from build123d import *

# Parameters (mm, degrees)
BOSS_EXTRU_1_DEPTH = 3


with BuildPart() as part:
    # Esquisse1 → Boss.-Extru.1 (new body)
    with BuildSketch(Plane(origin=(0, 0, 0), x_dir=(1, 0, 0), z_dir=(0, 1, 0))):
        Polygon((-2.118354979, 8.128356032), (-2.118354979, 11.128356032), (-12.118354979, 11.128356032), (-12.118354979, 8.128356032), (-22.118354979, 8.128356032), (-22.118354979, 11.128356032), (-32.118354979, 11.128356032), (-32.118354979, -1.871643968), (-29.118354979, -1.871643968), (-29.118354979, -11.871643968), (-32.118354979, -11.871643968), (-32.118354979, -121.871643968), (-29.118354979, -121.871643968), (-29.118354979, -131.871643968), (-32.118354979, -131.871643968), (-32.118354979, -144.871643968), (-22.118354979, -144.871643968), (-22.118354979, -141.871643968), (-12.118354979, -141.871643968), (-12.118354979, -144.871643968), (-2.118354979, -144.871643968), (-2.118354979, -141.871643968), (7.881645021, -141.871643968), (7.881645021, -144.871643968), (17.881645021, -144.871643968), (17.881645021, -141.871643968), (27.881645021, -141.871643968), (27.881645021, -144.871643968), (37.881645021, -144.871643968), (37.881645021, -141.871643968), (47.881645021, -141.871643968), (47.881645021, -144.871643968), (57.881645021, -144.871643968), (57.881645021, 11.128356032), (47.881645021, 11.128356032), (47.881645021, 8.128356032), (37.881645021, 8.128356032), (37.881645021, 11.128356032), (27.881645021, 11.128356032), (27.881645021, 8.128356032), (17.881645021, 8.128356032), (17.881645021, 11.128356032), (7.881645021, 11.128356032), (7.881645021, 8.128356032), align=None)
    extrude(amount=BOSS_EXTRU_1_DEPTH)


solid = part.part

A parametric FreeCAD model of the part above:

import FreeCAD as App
import Part
import Sketcher
from FreeCAD import Vector

doc = App.newDocument("Part")
body = doc.addObject("PartDesign::Body", "Body")

sketch1 = body.newObject("Sketcher::SketchObject", "Sketch")
sketch1.AttachmentSupport = (doc.getObject("XZ_Plane"), [""])
sketch1.MapMode = "FlatFace"
sketch1.addGeometry([
    Part.LineSegment(Vector(-2.118355, -8.128356, 0), Vector(-2.118355, -11.128356, 0)),
    Part.LineSegment(Vector(-2.118355, -11.128356, 0), Vector(-12.118355, -11.128356, 0)),
    Part.LineSegment(Vector(-12.118355, -11.128356, 0), Vector(-12.118355, -8.128356, 0)),
    Part.LineSegment(Vector(-12.118355, -8.128356, 0), Vector(-22.118355, -8.128356, 0)),
    Part.LineSegment(Vector(-22.118355, -8.128356, 0), Vector(-22.118355, -11.128356, 0)),
    Part.LineSegment(Vector(-22.118355, -11.128356, 0), Vector(-32.118355, -11.128356, 0)),
    Part.LineSegment(Vector(-32.118355, -11.128356, 0), Vector(-32.118355, 1.871644, 0)),
    Part.LineSegment(Vector(-32.118355, 1.871644, 0), Vector(-29.118355, 1.871644, 0)),
    Part.LineSegment(Vector(-29.118355, 1.871644, 0), Vector(-29.118355, 11.871644, 0)),
    Part.LineSegment(Vector(-29.118355, 11.871644, 0), Vector(-32.118355, 11.871644, 0)),
    Part.LineSegment(Vector(-32.118355, 11.871644, 0), Vector(-32.118355, 121.871644, 0)),
    Part.LineSegment(Vector(-32.118355, 121.871644, 0), Vector(-29.118355, 121.871644, 0)),
    Part.LineSegment(Vector(-29.118355, 121.871644, 0), Vector(-29.118355, 131.871644, 0)),
    Part.LineSegment(Vector(-29.118355, 131.871644, 0), Vector(-32.118355, 131.871644, 0)),
    Part.LineSegment(Vector(-32.118355, 131.871644, 0), Vector(-32.118355, 144.871644, 0)),
    Part.LineSegment(Vector(-32.118355, 144.871644, 0), Vector(-22.118355, 144.871644, 0)),
    Part.LineSegment(Vector(-22.118355, 144.871644, 0), Vector(-22.118355, 141.871644, 0)),
    Part.LineSegment(Vector(-22.118355, 141.871644, 0), Vector(-12.118355, 141.871644, 0)),
    Part.LineSegment(Vector(-12.118355, 141.871644, 0), Vector(-12.118355, 144.871644, 0)),
    Part.LineSegment(Vector(-12.118355, 144.871644, 0), Vector(-2.118355, 144.871644, 0)),
    Part.LineSegment(Vector(-2.118355, 144.871644, 0), Vector(-2.118355, 141.871644, 0)),
    Part.LineSegment(Vector(-2.118355, 141.871644, 0), Vector(7.881645, 141.871644, 0)),
    Part.LineSegment(Vector(7.881645, 141.871644, 0), Vector(7.881645, 144.871644, 0)),
    Part.LineSegment(Vector(7.881645, 144.871644, 0), Vector(17.881645, 144.871644, 0)),
    Part.LineSegment(Vector(17.881645, 144.871644, 0), Vector(17.881645, 141.871644, 0)),
    Part.LineSegment(Vector(17.881645, 141.871644, 0), Vector(27.881645, 141.871644, 0)),
    Part.LineSegment(Vector(27.881645, 141.871644, 0), Vector(27.881645, 144.871644, 0)),
    Part.LineSegment(Vector(27.881645, 144.871644, 0), Vector(37.881645, 144.871644, 0)),
    Part.LineSegment(Vector(37.881645, 144.871644, 0), Vector(37.881645, 141.871644, 0)),
    Part.LineSegment(Vector(37.881645, 141.871644, 0), Vector(47.881645, 141.871644, 0)),
    Part.LineSegment(Vector(47.881645, 141.871644, 0), Vector(47.881645, 144.871644, 0)),
    Part.LineSegment(Vector(47.881645, 144.871644, 0), Vector(57.881645, 144.871644, 0)),
    Part.LineSegment(Vector(57.881645, 144.871644, 0), Vector(57.881645, -11.128356, 0)),
    Part.LineSegment(Vector(57.881645, -11.128356, 0), Vector(47.881645, -11.128356, 0)),
    Part.LineSegment(Vector(47.881645, -11.128356, 0), Vector(47.881645, -8.128356, 0)),
    Part.LineSegment(Vector(47.881645, -8.128356, 0), Vector(37.881645, -8.128356, 0)),
    Part.LineSegment(Vector(37.881645, -8.128356, 0), Vector(37.881645, -11.128356, 0)),
    Part.LineSegment(Vector(37.881645, -11.128356, 0), Vector(27.881645, -11.128356, 0)),
    Part.LineSegment(Vector(27.881645, -11.128356, 0), Vector(27.881645, -8.128356, 0)),
    Part.LineSegment(Vector(27.881645, -8.128356, 0), Vector(17.881645, -8.128356, 0)),
    Part.LineSegment(Vector(17.881645, -8.128356, 0), Vector(17.881645, -11.128356, 0)),
    Part.LineSegment(Vector(17.881645, -11.128356, 0), Vector(7.881645, -11.128356, 0)),
    Part.LineSegment(Vector(7.881645, -11.128356, 0), Vector(7.881645, -8.128356, 0)),
    Part.LineSegment(Vector(7.881645, -8.128356, 0), Vector(-2.118355, -8.128356, 0)),
], False)
sketch1.addConstraint([
    Sketcher.Constraint("Coincident", 0, 2, 1, 1),
    Sketcher.Constraint("Coincident", 1, 2, 2, 1),
    Sketcher.Constraint("Coincident", 2, 2, 3, 1),
    Sketcher.Constraint("Coincident", 3, 2, 4, 1),
    Sketcher.Constraint("Coincident", 4, 2, 5, 1),
    Sketcher.Constraint("Coincident", 5, 2, 6, 1),
    Sketcher.Constraint("Coincident", 6, 2, 7, 1),
    Sketcher.Constraint("Coincident", 7, 2, 8, 1),
    Sketcher.Constraint("Coincident", 8, 2, 9, 1),
    Sketcher.Constraint("Coincident", 9, 2, 10, 1),
    Sketcher.Constraint("Coincident", 10, 2, 11, 1),
    Sketcher.Constraint("Coincident", 11, 2, 12, 1),
    Sketcher.Constraint("Coincident", 12, 2, 13, 1),
    Sketcher.Constraint("Coincident", 13, 2, 14, 1),
    Sketcher.Constraint("Coincident", 14, 2, 15, 1),
    Sketcher.Constraint("Coincident", 15, 2, 16, 1),
    Sketcher.Constraint("Coincident", 16, 2, 17, 1),
    Sketcher.Constraint("Coincident", 17, 2, 18, 1),
    Sketcher.Constraint("Coincident", 18, 2, 19, 1),
    Sketcher.Constraint("Coincident", 19, 2, 20, 1),
    Sketcher.Constraint("Coincident", 20, 2, 21, 1),
    Sketcher.Constraint("Coincident", 21, 2, 22, 1),
    Sketcher.Constraint("Coincident", 22, 2, 23, 1),
    Sketcher.Constraint("Coincident", 23, 2, 24, 1),
    Sketcher.Constraint("Coincident", 24, 2, 25, 1),
    Sketcher.Constraint("Coincident", 25, 2, 26, 1),
    Sketcher.Constraint("Coincident", 26, 2, 27, 1),
    Sketcher.Constraint("Coincident", 27, 2, 28, 1),
    Sketcher.Constraint("Coincident", 28, 2, 29, 1),
    Sketcher.Constraint("Coincident", 29, 2, 30, 1),
    Sketcher.Constraint("Coincident", 30, 2, 31, 1),
    Sketcher.Constraint("Coincident", 31, 2, 32, 1),
    Sketcher.Constraint("Coincident", 32, 2, 33, 1),
    Sketcher.Constraint("Coincident", 33, 2, 34, 1),
    Sketcher.Constraint("Coincident", 34, 2, 35, 1),
    Sketcher.Constraint("Coincident", 35, 2, 36, 1),
    Sketcher.Constraint("Coincident", 36, 2, 37, 1),
    Sketcher.Constraint("Coincident", 37, 2, 38, 1),
    Sketcher.Constraint("Coincident", 38, 2, 39, 1),
    Sketcher.Constraint("Coincident", 39, 2, 40, 1),
    Sketcher.Constraint("Coincident", 40, 2, 41, 1),
    Sketcher.Constraint("Coincident", 41, 2, 42, 1),
    Sketcher.Constraint("Coincident", 42, 2, 43, 1),
    Sketcher.Constraint("Coincident", 43, 2, 0, 1),
    Sketcher.Constraint("Vertical", 0),
    Sketcher.Constraint("Horizontal", 1),
    Sketcher.Constraint("Vertical", 2),
    Sketcher.Constraint("Horizontal", 3),
    Sketcher.Constraint("Vertical", 4),
    Sketcher.Constraint("Horizontal", 5),
    Sketcher.Constraint("Vertical", 6),
    Sketcher.Constraint("Horizontal", 7),
    Sketcher.Constraint("Vertical", 8),
    Sketcher.Constraint("Horizontal", 9),
    Sketcher.Constraint("Vertical", 10),
    Sketcher.Constraint("Horizontal", 11),
    Sketcher.Constraint("Vertical", 12),
    Sketcher.Constraint("Horizontal", 13),
    Sketcher.Constraint("Vertical", 14),
    Sketcher.Constraint("Horizontal", 15),
    Sketcher.Constraint("Vertical", 16),
    Sketcher.Constraint("Horizontal", 17),
    Sketcher.Constraint("Vertical", 18),
    Sketcher.Constraint("Horizontal", 19),
    Sketcher.Constraint("Vertical", 20),
    Sketcher.Constraint("Horizontal", 21),
    Sketcher.Constraint("Vertical", 22),
    Sketcher.Constraint("Horizontal", 23),
    Sketcher.Constraint("Vertical", 24),
    Sketcher.Constraint("Horizontal", 25),
    Sketcher.Constraint("Vertical", 26),
    Sketcher.Constraint("Horizontal", 27),
    Sketcher.Constraint("Vertical", 28),
    Sketcher.Constraint("Horizontal", 29),
    Sketcher.Constraint("Vertical", 30),
    Sketcher.Constraint("Horizontal", 31),
    Sketcher.Constraint("Vertical", 32),
    Sketcher.Constraint("Horizontal", 33),
    Sketcher.Constraint("Vertical", 34),
    Sketcher.Constraint("Horizontal", 35),
    Sketcher.Constraint("Vertical", 36),
    Sketcher.Constraint("Horizontal", 37),
    Sketcher.Constraint("Vertical", 38),
    Sketcher.Constraint("Horizontal", 39),
    Sketcher.Constraint("Vertical", 40),
    Sketcher.Constraint("Horizontal", 41),
    Sketcher.Constraint("Vertical", 42),
    Sketcher.Constraint("Horizontal", 43),
    Sketcher.Constraint("Horizontal", 1, 2, 4, 2),
    Sketcher.Constraint("Horizontal", 15, 2, 18, 2),
    Sketcher.Constraint("Horizontal", 17, 2, 20, 2),
    Sketcher.Constraint("Horizontal", 19, 2, 22, 2),
    Sketcher.Constraint("Horizontal", 21, 2, 24, 2),
    Sketcher.Constraint("Horizontal", 23, 2, 26, 2),
    Sketcher.Constraint("Horizontal", 25, 2, 28, 2),
    Sketcher.Constraint("Horizontal", 27, 2, 30, 2),
    Sketcher.Constraint("Horizontal", 5, 2, 32, 2),
    Sketcher.Constraint("Horizontal", 3, 2, 34, 2),
    Sketcher.Constraint("Horizontal", 33, 2, 36, 2),
    Sketcher.Constraint("Horizontal", 35, 2, 38, 2),
    Sketcher.Constraint("Horizontal", 37, 2, 40, 2),
    Sketcher.Constraint("Horizontal", 39, 2, 42, 2),
    Sketcher.Constraint("Vertical", 6, 2, 9, 2),
    Sketcher.Constraint("Vertical", 8, 2, 11, 2),
    Sketcher.Constraint("Vertical", 10, 2, 13, 2),
    Sketcher.Constraint("Vertical", 4, 2, 15, 2),
    Sketcher.Constraint("Vertical", 2, 2, 17, 2),
    Sketcher.Constraint("Vertical", 0, 2, 19, 2),
    Sketcher.Constraint("Vertical", 30, 2, 33, 2),
    Sketcher.Constraint("Vertical", 28, 2, 35, 2),
    Sketcher.Constraint("Vertical", 26, 2, 37, 2),
    Sketcher.Constraint("Vertical", 24, 2, 39, 2),
    Sketcher.Constraint("Vertical", 22, 2, 41, 2),
    Sketcher.Constraint("Equal", 1, 3),
    Sketcher.Constraint("Equal", 3, 5),
    Sketcher.Constraint("Equal", 19, 21),
    Sketcher.Constraint("Equal", 21, 23),
    Sketcher.Constraint("Equal", 23, 25),
    Sketcher.Constraint("Equal", 25, 27),
    Sketcher.Constraint("Equal", 27, 29),
    Sketcher.Constraint("Equal", 29, 31),
    Sketcher.Constraint("Equal", 13, 0),
    Sketcher.Constraint("Equal", 43, 8),
    Sketcher.Constraint("Equal", 8, 12),
    Sketcher.Constraint("Equal", 6, 14),
    Sketcher.Constraint("Equal", 4, 16),
    Sketcher.Constraint("DistanceX", 1, 2, 1, 1, 10.0),
    Sketcher.Constraint("DistanceX", 7, 1, 7, 2, 3.0),
    Sketcher.Constraint("DistanceY", 6, 1, 6, 2, 13.0),
    Sketcher.Constraint("DistanceY", 10, 1, 10, 2, 110.0),
    Sketcher.Constraint("DistanceX", 0, 2, -1, 1, 2.118355),
    Sketcher.Constraint("DistanceY", 0, 2, -1, 1, 11.128356),
])
pad1 = body.newObject("PartDesign::Pad", "Pad")
pad1.Profile = sketch1
pad1.Length = 3
pad1.Reversed = True

doc.recompute()
